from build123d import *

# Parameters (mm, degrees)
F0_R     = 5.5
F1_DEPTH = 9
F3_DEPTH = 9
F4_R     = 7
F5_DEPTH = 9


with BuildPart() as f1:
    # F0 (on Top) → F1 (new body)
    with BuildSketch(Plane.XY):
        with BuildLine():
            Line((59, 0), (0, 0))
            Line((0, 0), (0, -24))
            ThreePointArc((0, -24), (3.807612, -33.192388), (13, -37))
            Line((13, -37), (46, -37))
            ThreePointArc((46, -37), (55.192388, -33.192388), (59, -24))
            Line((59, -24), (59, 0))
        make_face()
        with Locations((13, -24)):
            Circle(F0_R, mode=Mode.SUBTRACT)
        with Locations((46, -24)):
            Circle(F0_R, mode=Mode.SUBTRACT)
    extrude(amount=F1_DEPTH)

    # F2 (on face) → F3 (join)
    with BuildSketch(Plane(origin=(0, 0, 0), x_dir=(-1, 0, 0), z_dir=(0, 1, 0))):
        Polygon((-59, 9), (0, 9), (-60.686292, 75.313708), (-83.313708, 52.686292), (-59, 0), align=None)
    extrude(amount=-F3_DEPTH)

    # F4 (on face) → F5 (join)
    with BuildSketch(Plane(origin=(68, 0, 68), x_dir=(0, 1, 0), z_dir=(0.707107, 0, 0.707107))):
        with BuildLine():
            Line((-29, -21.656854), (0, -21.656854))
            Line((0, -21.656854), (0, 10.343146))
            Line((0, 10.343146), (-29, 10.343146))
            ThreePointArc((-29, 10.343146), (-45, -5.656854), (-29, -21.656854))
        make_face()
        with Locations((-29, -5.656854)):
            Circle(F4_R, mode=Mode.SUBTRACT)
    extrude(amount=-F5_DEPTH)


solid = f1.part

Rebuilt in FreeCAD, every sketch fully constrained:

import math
import FreeCAD as App
import Part
import Sketcher
Q = App.Units.Quantity

doc = App.newDocument("Part")
body = doc.addObject("PartDesign::Body", "Body")

# Sketch on XY plane
sketch1 = doc.addObject("Sketcher::SketchObject", "Sketch")
body.addObject(sketch1)
sketch1.AttachmentSupport = (doc.XY_Plane, [""])
sketch1.MapMode = "FlatFace"
sketch1.addGeometry([
    Part.LineSegment(App.Vector(59, 0, 0), App.Vector(0, 0, 0)),  # 0
    Part.LineSegment(App.Vector(0, 0, 0), App.Vector(0, -24, 0)),  # 1
    Part.ArcOfCircle(Part.Circle(App.Vector(13.000001, -23.999999, 0), App.Vector(0, 0, 1), 13.000001), math.radians(-179.999998), math.radians(-90.000002)),  # 2
    Part.LineSegment(App.Vector(13, -37, 0), App.Vector(46, -37, 0)),  # 3
    Part.ArcOfCircle(Part.Circle(App.Vector(45.999999, -23.999999, 0), App.Vector(0, 0, 1), 13.000001), math.radians(-89.999998), math.radians(-0.000002)),  # 4
    Part.LineSegment(App.Vector(59, -24, 0), App.Vector(59, 0, 0)),  # 5
    Part.Circle(App.Vector(13, -24, 0), App.Vector(0, 0, 1), 5.5),  # 6
    Part.Circle(App.Vector(46, -24, 0), App.Vector(0, 0, 1), 5.5),  # 7
], False)
sketch1.addConstraint([
    Sketcher.Constraint("Coincident", 0, 2, 1, 1),
    Sketcher.Constraint("Tangent", 1, 2, 2, 1),
    Sketcher.Constraint("Tangent", 2, 2, 3, 1),
    Sketcher.Constraint("Tangent", 3, 2, 4, 1),
    Sketcher.Constraint("Tangent", 4, 2, 5, 1),
    Sketcher.Constraint("Coincident", 5, 2, 0, 1),
    Sketcher.Constraint("Horizontal", 0),
    Sketcher.Constraint("Vertical", 1),
    Sketcher.Constraint("Horizontal", 3),
    Sketcher.Constraint("Vertical", 5),
    Sketcher.Constraint("Coincident", 0, 2, -1, 1),
    Sketcher.Constraint("Coincident", 6, 3, 2, 3),
    Sketcher.Constraint("Coincident", 7, 3, 4, 3),
    Sketcher.Constraint("Equal", 2, 4),
    Sketcher.Constraint("Equal", 6, 7),
    Sketcher.Constraint("Diameter", 6, 11.0),
    Sketcher.Constraint("Radius", 2, 13.000001),
    Sketcher.Constraint("DistanceX", 0, 2, 0, 1, 59.0),
    Sketcher.Constraint("DistanceY", 1, 2, 1, 1, 24.0),
])
pad1 = doc.addObject("PartDesign::Pad", "Pad")
body.addObject(pad1)
pad1.Profile = sketch1
pad1.Length = 9

# Sketch on XZ plane
sketch2 = doc.addObject("Sketcher::SketchObject", "Sketch001")
body.addObject(sketch2)
sketch2.AttachmentSupport = (doc.XZ_Plane, [""])
sketch2.MapMode = "FlatFace"
sketch2.addGeometry([
    Part.LineSegment(App.Vector(59, 9, 0), App.Vector(0, 9, 0)),  # 0
    Part.LineSegment(App.Vector(0, 9, 0), App.Vector(60.686292, 75.313708, 0)),  # 1
    Part.LineSegment(App.Vector(60.686292, 75.313708, 0), App.Vector(83.313708, 52.686292, 0)),  # 2
    Part.LineSegment(App.Vector(83.313708, 52.686292, 0), App.Vector(59, 0, 0)),  # 3
    Part.LineSegment(App.Vector(59, 0, 0), App.Vector(59, 9, 0)),  # 4
], False)
sketch2.addConstraint([
    Sketcher.Constraint("Coincident", 0, 2, 1, 1),
    Sketcher.Constraint("Coincident", 1, 2, 2, 1),
    Sketcher.Constraint("Coincident", 2, 2, 3, 1),
    Sketcher.Constraint("Coincident", 3, 2, 4, 1),
    Sketcher.Constraint("Coincident", 4, 2, 0, 1),
    Sketcher.Constraint("Horizontal", 0),
    Sketcher.Constraint("Vertical", 4),
    Sketcher.Constraint("PointOnObject", 0, 2, -2),
    Sketcher.Constraint("PointOnObject", 3, 2, -1),
    Sketcher.Constraint("DistanceX", 0, 2, 0, 1, 59.0),
    Sketcher.Constraint("DistanceY", 4, 1, 4, 2, 9.0),
    Sketcher.Constraint("Angle", 2, Q("-45 deg")),
    Sketcher.Constraint("Distance", 2, 31.999999),
    Sketcher.Constraint("Distance", 3, 58.025871),
    Sketcher.Constraint("DistanceY", -1, 1, 1, 2, 75.313708),
])
pad2 = doc.addObject("PartDesign::Pad", "Pad001")
body.addObject(pad2)
pad2.Profile = sketch2
pad2.Length = 9

# Sketch on an angled plane
sketch3 = doc.addObject("Sketcher::SketchObject", "Sketch002")
body.addObject(sketch3)
sketch3.Placement = App.Placement(App.Vector(68, 0, 68), App.Rotation(App.Vector(0, 1, 0), App.Vector(-0.707106781, 0, 0.707106781), App.Vector(0.707106781, 0, 0.707106781), "ZXY"))
sketch3.addGeometry([
    Part.LineSegment(App.Vector(-29, -21.656854, 0), App.Vector(0, -21.656854, 0)),  # 0
    Part.LineSegment(App.Vector(0, -21.656854, 0), App.Vector(0, 10.343146, 0)),  # 1
    Part.LineSegment(App.Vector(0, 10.343146, 0), App.Vector(-29, 10.343146, 0)),  # 2
    Part.ArcOfCircle(Part.Circle(App.Vector(-29, -5.656854, 0), App.Vector(0, 0, 1), 16), math.radians(90), math.radians(270)),  # 3
    Part.Circle(App.Vector(-29, -5.656854, 0), App.Vector(0, 0, 1), 7),  # 4
], False)
sketch3.addConstraint([
    Sketcher.Constraint("Coincident", 0, 2, 1, 1),
    Sketcher.Constraint("Coincident", 1, 2, 2, 1),
    Sketcher.Constraint("Tangent", 2, 2, 3, 1),
    Sketcher.Constraint("Tangent", 3, 2, 0, 1),
    Sketcher.Constraint("Horizontal", 0),
    Sketcher.Constraint("Vertical", 1),
    Sketcher.Constraint("Horizontal", 2),
    Sketcher.Constraint("Coincident", 4, 3, 3, 3),
    Sketcher.Constraint("PointOnObject", 0, 2, -2),
    Sketcher.Constraint("Diameter", 4, 14.0),
    Sketcher.Constraint("Radius", 3, 16.0),
    Sketcher.Constraint("DistanceX", 0, 1, 0, 2, 29.0),
    Sketcher.Constraint("DistanceY", 3, 3, -1, 1, 5.656854),
])
pad3 = doc.addObject("PartDesign::Pad", "Pad002")
body.addObject(pad3)
pad3.Profile = sketch3
pad3.Length = 9
pad3.Reversed = True

doc.recompute()
